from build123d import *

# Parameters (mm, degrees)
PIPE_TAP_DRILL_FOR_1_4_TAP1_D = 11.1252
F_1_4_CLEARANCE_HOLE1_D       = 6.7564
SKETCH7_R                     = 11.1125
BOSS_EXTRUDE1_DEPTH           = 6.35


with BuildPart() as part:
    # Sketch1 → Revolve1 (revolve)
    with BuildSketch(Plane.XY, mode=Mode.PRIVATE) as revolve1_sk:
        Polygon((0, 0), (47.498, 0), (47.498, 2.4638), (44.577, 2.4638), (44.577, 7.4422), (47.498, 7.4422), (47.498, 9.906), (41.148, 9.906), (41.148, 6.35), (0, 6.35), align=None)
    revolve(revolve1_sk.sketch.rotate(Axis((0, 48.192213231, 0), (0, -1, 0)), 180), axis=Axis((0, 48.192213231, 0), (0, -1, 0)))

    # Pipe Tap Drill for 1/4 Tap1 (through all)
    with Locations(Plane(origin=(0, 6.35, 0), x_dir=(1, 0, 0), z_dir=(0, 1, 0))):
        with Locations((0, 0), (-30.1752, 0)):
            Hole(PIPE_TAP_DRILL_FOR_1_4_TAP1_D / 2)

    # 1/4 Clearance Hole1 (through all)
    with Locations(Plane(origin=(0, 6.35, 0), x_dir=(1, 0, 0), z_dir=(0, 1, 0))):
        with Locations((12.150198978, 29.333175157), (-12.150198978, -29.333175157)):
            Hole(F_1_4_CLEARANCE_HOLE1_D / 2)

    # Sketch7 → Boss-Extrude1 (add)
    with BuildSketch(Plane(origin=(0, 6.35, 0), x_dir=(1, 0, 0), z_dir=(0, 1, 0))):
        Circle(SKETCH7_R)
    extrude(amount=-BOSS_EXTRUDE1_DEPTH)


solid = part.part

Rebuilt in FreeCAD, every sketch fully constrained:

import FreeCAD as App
import Part
import Sketcher
Q = App.Units.Quantity

doc = App.newDocument("Part")
body = doc.addObject("PartDesign::Body", "Body")

# Sketch on XY plane
sketch1 = doc.addObject("Sketcher::SketchObject", "Sketch")
body.addObject(sketch1)
sketch1.AttachmentSupport = (doc.XY_Plane, [""])
sketch1.MapMode = "FlatFace"
sketch1.addGeometry([
    Part.LineSegment(App.Vector(0, 0, 0), App.Vector(47.498, 0, 0)),  # 0
    Part.LineSegment(App.Vector(47.498, 0, 0), App.Vector(47.498, 2.4638, 0)),  # 1
    Part.LineSegment(App.Vector(47.498, 2.4638, 0), App.Vector(44.577, 2.4638, 0)),  # 2
    Part.LineSegment(App.Vector(44.577, 2.4638, 0), App.Vector(44.577, 7.4422, 0)),  # 3
    Part.LineSegment(App.Vector(44.577, 7.4422, 0), App.Vector(47.498, 7.4422, 0)),  # 4
    Part.LineSegment(App.Vector(47.498, 7.4422, 0), App.Vector(47.498, 9.906, 0)),  # 5
    Part.LineSegment(App.Vector(47.498, 9.906, 0), App.Vector(41.148, 9.906, 0)),  # 6
    Part.LineSegment(App.Vector(41.148, 9.906, 0), App.Vector(41.148, 6.35, 0)),  # 7
    Part.LineSegment(App.Vector(41.148, 6.35, 0), App.Vector(0, 6.35, 0)),  # 8
    Part.LineSegment(App.Vector(0, 6.35, 0), App.Vector(0, 0, 0)),  # 9
], False)
sketch1.addConstraint([
    Sketcher.Constraint("Coincident", 0, 2, 1, 1),
    Sketcher.Constraint("Coincident", 1, 2, 2, 1),
    Sketcher.Constraint("Coincident", 2, 2, 3, 1),
    Sketcher.Constraint("Coincident", 3, 2, 4, 1),
    Sketcher.Constraint("Coincident", 4, 2, 5, 1),
    Sketcher.Constraint("Coincident", 5, 2, 6, 1),
    Sketcher.Constraint("Coincident", 6, 2, 7, 1),
    Sketcher.Constraint("Coincident", 7, 2, 8, 1),
    Sketcher.Constraint("Coincident", 8, 2, 9, 1),
    Sketcher.Constraint("Coincident", 9, 2, 0, 1),
    Sketcher.Constraint("Horizontal", 0),
    Sketcher.Constraint("Vertical", 1),
    Sketcher.Constraint("Horizontal", 2),
    Sketcher.Constraint("Vertical", 3),
    Sketcher.Constraint("Horizontal", 4),
    Sketcher.Constraint("Vertical", 5),
    Sketcher.Constraint("Horizontal", 6),
    Sketcher.Constraint("Vertical", 7),
    Sketcher.Constraint("Horizontal", 8),
    Sketcher.Constraint("Vertical", 9),
    Sketcher.Constraint("Coincident", 9, 2, -1, 1),
    Sketcher.Constraint("Vertical", 1, 2, 4, 2),
    Sketcher.Constraint("Equal", 1, 5),
    Sketcher.Constraint("Equal", 6, 9),
    Sketcher.Constraint("DistanceX", 0, 1, 0, 2, Q("1.87 in")),
    Sketcher.Constraint("DistanceX", 6, 2, 6, 1, Q("0.25 in")),
    Sketcher.Constraint("DistanceY", 7, 2, 7, 1, Q("0.14 in")),
    Sketcher.Constraint("DistanceX", 2, 2, 2, 1, Q("0.115 in")),
    Sketcher.Constraint("DistanceY", 1, 1, 1, 2, Q("0.097 in")),
])
revolution = doc.addObject("PartDesign::Revolution", "Revolution")
body.addObject(revolution)
revolution.Profile = sketch1
revolution.ReferenceAxis = (sketch1, ["V_Axis"])
revolution.Angle = 360

# Sketch on XZ plane
sketch2 = doc.addObject("Sketcher::SketchObject", "Sketch001")
body.addObject(sketch2)
sketch2.AttachmentSupport = (doc.XZ_Plane, [""])
sketch2.MapMode = "FlatFace"
sketch2.AttachmentOffset = App.Placement(App.Vector(0, 0, -0.25 * 25.4), App.Rotation())
sketch2.addGeometry([
    Part.Circle(App.Vector(0, 0, 0), App.Vector(0, 0, 1), 5.5626),
    Part.Circle(App.Vector(-30.1752, 0, 0), App.Vector(0, 0, 1), 5.5626),
], False)
sketch2.addConstraint([
    Sketcher.Constraint("Coincident", 0, 3, -1, 1),
    Sketcher.Constraint("Equal", 0, 1),
    Sketcher.Constraint("PointOnObject", 1, 3, -1),
    Sketcher.Constraint("Diameter", 0, Q("0.438 in")),
    Sketcher.Constraint("DistanceX", 1, 3, -1, 1, Q("1.188 in")),
])
doc.recompute()
hole = doc.addObject("PartDesign::Hole", "Hole")
body.addObject(hole)
hole.Profile = sketch2
hole.ThreadType = "None"
hole.Diameter = Q("0.438 in")
hole.DepthType = "ThroughAll"
hole.Reversed = True

# Sketch on XZ plane
sketch3 = doc.addObject("Sketcher::SketchObject", "Sketch002")
body.addObject(sketch3)
sketch3.AttachmentSupport = (doc.XZ_Plane, [""])
sketch3.MapMode = "FlatFace"
sketch3.AttachmentOffset = App.Placement(App.Vector(0, 0, -0.25 * 25.4), App.Rotation())
sketch3.addGeometry([
    Part.Circle(App.Vector(12.150199, -29.333175, 0), App.Vector(0, 0, 1), 3.3782),
    Part.Circle(App.Vector(-12.150199, 29.333175, 0), App.Vector(0, 0, 1), 3.3782),
], False)
sketch3.addConstraint([
    Sketcher.Constraint("Equal", 0, 1),
    Sketcher.Constraint("Symmetric", 0, 3, 1, 3, -1, 1),
    Sketcher.Constraint("Diameter", 0, Q("0.266 in")),
    Sketcher.Constraint("DistanceX", -1, 1, 0, 3, Q("12.150199 mm")),
    Sketcher.Constraint("DistanceY", 0, 3, 1, 3, Q("58.66635 mm")),
])
doc.recompute()
hole2 = doc.addObject("PartDesign::Hole", "Hole001")
body.addObject(hole2)
hole2.Profile = sketch3
hole2.ThreadType = "None"
hole2.Diameter = Q("0.266 in")
hole2.DepthType = "ThroughAll"
hole2.Reversed = True

# Sketch on XZ plane
sketch4 = doc.addObject("Sketcher::SketchObject", "Sketch003")
body.addObject(sketch4)
sketch4.AttachmentSupport = (doc.XZ_Plane, [""])
sketch4.MapMode = "FlatFace"
sketch4.AttachmentOffset = App.Placement(App.Vector(0, 0, -0.25 * 25.4), App.Rotation())
sketch4.addGeometry(Part.Circle(App.Vector(0, 0, 0), App.Vector(0, 0, 1), 11.1125), False)
sketch4.addConstraint([
    Sketcher.Constraint("Coincident", 0, 3, -1, 1),
    Sketcher.Constraint("Diameter", 0, Q("0.875 in")),
])
pad1 = doc.addObject("PartDesign::Pad", "Pad")
body.addObject(pad1)
pad1.Profile = sketch4
pad1.Length = Q("0.25 in")

doc.recompute()
